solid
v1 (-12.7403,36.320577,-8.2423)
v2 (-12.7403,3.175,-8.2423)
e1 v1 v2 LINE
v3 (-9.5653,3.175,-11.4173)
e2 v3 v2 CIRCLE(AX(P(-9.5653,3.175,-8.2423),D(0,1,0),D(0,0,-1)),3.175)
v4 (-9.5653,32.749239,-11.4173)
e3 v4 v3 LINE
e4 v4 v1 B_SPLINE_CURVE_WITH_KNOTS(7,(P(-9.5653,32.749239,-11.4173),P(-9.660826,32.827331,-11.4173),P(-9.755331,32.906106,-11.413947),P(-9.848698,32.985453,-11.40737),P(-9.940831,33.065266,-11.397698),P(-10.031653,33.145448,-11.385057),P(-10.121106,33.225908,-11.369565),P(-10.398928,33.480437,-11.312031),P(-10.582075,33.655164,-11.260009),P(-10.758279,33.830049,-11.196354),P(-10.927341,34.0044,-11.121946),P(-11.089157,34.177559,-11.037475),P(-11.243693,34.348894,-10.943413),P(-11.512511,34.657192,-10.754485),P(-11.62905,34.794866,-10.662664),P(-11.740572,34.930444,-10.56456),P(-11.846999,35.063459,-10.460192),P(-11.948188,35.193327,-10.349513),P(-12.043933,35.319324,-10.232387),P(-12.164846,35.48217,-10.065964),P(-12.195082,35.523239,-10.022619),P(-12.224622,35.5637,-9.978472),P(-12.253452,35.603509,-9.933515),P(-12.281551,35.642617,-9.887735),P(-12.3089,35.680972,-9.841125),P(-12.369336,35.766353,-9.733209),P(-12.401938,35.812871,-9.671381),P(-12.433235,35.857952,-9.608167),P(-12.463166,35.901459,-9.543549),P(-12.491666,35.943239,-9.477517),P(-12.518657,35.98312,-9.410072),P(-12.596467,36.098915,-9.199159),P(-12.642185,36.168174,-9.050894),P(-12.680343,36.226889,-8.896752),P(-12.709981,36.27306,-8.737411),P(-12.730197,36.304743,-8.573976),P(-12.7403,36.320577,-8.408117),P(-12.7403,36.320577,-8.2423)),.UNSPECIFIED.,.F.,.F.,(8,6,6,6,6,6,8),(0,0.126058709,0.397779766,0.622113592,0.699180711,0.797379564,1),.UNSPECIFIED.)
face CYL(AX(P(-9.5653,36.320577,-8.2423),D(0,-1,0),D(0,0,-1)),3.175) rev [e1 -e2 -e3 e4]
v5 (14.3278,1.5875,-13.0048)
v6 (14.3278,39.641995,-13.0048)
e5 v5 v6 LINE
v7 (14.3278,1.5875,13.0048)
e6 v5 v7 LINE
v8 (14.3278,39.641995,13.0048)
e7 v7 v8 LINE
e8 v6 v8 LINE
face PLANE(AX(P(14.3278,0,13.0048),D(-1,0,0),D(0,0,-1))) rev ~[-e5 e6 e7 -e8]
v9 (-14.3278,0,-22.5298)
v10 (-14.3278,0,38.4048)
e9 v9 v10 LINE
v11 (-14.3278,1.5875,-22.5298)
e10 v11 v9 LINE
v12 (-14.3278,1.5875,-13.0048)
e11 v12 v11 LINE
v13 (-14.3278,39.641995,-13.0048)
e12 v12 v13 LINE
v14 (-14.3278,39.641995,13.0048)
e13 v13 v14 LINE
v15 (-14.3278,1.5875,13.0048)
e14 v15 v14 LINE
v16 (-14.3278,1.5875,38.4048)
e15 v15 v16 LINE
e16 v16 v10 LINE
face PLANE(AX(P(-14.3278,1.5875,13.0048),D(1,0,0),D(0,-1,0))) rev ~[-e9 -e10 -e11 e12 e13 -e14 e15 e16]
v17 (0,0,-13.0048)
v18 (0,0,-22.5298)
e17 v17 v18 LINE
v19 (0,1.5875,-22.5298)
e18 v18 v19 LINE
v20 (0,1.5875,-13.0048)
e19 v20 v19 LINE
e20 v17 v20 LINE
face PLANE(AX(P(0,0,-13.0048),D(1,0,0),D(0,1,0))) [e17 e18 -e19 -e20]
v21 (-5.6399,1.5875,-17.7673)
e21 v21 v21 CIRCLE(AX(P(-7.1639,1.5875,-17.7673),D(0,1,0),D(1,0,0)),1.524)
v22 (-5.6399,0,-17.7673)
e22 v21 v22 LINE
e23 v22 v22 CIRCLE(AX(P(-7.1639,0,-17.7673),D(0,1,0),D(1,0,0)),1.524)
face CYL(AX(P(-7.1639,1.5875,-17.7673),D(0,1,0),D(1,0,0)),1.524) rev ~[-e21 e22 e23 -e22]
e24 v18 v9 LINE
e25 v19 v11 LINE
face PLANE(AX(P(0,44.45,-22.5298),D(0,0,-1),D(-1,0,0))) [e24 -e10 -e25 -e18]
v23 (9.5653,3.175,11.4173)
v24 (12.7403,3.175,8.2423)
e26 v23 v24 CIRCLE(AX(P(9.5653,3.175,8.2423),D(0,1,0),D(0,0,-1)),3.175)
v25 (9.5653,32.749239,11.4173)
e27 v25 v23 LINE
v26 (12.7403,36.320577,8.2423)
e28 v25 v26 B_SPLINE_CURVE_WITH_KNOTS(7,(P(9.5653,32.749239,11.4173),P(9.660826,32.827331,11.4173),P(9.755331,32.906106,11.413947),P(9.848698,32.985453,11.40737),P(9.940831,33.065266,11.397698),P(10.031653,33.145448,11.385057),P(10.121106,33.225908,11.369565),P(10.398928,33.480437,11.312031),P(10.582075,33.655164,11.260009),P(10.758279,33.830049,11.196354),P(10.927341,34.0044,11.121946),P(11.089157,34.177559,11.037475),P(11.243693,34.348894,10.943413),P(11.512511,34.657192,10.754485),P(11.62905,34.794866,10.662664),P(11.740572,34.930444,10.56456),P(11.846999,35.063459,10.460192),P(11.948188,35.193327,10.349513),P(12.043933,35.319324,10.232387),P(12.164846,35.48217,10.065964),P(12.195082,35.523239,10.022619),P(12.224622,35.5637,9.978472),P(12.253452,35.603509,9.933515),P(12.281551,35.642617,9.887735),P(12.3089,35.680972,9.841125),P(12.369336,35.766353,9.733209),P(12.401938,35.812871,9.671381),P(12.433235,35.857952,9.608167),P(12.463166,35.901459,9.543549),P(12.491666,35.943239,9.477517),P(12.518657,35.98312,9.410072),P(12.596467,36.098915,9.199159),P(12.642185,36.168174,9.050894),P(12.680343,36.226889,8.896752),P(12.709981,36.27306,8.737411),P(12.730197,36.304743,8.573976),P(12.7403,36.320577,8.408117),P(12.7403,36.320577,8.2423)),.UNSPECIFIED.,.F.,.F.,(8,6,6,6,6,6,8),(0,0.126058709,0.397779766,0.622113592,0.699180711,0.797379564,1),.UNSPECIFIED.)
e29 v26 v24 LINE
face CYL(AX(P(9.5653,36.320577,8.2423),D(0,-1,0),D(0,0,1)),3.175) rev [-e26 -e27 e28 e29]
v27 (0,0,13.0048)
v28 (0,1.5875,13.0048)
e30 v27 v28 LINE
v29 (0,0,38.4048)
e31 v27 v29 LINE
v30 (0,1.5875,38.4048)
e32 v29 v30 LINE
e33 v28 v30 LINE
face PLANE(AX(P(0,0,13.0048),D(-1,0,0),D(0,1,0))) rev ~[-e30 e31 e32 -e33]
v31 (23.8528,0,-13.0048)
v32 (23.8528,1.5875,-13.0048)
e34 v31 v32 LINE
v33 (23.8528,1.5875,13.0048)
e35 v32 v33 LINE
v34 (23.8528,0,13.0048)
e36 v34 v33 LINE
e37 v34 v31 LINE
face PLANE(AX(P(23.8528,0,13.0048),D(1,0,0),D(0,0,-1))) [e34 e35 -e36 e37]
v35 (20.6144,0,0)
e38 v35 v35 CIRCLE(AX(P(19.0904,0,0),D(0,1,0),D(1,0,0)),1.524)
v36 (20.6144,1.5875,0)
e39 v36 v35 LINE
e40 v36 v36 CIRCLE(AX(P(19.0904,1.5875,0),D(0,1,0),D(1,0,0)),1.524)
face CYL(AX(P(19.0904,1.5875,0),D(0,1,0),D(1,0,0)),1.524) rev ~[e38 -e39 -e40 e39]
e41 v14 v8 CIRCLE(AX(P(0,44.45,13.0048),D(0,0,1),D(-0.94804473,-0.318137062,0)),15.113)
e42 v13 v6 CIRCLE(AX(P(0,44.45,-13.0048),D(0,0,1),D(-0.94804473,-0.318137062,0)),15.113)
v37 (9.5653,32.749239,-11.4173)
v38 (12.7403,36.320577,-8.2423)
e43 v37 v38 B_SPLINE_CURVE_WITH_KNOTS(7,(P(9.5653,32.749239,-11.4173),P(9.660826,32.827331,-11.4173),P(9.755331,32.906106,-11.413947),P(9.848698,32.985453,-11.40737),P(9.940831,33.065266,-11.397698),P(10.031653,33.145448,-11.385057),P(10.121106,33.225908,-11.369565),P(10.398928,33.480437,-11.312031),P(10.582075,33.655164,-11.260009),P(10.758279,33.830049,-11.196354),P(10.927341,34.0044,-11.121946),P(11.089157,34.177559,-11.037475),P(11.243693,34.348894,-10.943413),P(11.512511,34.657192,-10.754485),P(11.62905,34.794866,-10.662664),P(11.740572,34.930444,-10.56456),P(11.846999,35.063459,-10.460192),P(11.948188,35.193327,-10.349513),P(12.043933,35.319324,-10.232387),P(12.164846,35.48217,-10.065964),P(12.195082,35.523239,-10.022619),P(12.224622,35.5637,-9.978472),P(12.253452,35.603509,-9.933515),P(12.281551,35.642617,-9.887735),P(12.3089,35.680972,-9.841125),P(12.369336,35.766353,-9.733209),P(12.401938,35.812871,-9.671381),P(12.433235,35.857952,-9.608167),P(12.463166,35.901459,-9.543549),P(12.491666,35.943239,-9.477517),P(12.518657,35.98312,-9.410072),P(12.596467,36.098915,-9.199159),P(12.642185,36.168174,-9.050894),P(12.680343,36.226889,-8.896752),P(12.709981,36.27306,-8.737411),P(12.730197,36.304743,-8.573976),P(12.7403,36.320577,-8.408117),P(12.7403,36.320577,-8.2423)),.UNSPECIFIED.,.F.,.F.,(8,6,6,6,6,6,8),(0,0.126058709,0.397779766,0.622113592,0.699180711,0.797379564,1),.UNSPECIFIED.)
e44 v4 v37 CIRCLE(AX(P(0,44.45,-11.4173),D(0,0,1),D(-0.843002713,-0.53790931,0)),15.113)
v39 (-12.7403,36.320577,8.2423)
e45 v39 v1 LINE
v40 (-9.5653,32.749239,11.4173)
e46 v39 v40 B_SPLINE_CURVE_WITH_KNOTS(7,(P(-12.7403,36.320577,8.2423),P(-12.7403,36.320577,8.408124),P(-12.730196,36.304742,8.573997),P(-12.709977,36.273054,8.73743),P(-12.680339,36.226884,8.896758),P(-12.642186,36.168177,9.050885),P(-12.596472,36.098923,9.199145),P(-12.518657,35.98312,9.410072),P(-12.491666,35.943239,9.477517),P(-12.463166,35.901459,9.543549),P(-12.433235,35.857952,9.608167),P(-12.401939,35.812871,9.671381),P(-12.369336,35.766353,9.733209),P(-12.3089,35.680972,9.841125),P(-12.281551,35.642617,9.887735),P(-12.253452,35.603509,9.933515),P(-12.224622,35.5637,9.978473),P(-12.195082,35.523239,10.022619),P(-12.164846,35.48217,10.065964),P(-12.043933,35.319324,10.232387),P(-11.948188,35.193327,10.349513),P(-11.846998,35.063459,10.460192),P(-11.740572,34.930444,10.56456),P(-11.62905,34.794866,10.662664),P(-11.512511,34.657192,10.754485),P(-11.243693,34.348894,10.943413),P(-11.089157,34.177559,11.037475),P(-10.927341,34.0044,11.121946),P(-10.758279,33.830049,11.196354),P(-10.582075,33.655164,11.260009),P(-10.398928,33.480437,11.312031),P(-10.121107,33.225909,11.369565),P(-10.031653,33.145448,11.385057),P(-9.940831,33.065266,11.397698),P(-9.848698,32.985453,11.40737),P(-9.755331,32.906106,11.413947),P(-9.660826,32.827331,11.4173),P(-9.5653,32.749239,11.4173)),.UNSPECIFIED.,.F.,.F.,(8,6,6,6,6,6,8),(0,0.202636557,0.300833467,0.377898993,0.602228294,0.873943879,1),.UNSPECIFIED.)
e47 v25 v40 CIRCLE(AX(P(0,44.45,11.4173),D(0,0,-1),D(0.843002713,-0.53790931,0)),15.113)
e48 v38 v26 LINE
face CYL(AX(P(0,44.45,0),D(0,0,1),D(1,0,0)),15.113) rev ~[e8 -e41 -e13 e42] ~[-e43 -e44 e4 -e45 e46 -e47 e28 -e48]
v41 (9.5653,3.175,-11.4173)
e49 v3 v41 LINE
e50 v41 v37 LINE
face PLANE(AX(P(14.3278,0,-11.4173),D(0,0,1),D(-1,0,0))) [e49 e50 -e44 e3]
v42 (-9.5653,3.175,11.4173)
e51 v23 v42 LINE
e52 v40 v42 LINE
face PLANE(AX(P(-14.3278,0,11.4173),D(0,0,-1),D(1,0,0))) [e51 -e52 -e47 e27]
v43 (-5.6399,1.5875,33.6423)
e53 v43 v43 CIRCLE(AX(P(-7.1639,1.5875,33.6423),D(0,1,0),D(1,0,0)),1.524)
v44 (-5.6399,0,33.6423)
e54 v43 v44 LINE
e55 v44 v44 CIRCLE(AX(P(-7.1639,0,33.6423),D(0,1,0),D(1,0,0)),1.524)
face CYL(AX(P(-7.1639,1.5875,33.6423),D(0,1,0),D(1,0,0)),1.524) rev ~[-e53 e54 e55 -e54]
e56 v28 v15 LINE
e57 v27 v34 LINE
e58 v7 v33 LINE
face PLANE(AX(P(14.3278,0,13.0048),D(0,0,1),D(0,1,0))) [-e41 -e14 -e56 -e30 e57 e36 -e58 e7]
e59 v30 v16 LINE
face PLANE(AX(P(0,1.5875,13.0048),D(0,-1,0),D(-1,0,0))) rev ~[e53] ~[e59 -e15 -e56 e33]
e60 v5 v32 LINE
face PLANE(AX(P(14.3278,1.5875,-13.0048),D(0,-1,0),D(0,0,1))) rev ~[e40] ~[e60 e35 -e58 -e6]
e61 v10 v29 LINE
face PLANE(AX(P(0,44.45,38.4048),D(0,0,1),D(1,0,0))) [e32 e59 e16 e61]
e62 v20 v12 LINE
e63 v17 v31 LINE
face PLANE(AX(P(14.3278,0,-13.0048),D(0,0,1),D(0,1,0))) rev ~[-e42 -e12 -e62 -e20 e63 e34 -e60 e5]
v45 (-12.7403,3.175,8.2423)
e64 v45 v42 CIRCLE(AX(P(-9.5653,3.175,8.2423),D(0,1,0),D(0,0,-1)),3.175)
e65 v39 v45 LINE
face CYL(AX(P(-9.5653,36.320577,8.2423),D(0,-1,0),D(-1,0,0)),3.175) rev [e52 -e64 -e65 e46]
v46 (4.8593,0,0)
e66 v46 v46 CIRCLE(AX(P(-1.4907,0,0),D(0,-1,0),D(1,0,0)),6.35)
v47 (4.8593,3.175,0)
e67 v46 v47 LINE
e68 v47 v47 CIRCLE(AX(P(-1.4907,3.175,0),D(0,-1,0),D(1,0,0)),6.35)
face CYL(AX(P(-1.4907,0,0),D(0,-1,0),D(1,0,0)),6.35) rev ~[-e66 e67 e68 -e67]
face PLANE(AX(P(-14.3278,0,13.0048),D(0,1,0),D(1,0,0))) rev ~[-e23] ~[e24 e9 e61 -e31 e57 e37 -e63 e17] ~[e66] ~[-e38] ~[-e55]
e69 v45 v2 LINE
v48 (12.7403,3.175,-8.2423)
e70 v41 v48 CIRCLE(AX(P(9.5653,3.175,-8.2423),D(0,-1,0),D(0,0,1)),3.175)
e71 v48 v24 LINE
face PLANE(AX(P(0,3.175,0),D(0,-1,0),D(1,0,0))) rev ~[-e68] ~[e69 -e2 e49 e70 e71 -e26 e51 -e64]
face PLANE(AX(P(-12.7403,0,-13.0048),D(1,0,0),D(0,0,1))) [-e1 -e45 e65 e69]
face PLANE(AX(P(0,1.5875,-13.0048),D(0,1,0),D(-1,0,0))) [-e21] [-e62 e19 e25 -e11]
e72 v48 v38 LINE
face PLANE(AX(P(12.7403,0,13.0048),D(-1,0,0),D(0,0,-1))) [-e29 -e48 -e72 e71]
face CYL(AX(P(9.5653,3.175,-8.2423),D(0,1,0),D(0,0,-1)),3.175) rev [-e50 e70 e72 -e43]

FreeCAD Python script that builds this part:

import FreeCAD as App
import Part
import Sketcher

V = App.Vector
Q = App.Units.Quantity


def edges_at(feature, points):
    """Names of the edges that pass closest to the given points."""
    edges = feature.Shape.Edges
    near = lambda p: min(range(len(edges)), key=lambda i: edges[i].distToShape(Part.Vertex(*p))[0])
    return sorted({f"Edge{near(p) + 1}" for p in points})


def faces_at(feature, points):
    """Names of the faces that lie closest to the given points."""
    faces = feature.Shape.Faces
    near = lambda p: min(range(len(faces)), key=lambda i: faces[i].distToShape(Part.Vertex(*p))[0])
    return sorted({f"Face{near(p) + 1}" for p in points})

doc = App.newDocument("Part")
params = doc.addObject("Spreadsheet::Sheet", "Params")
for row, (alias, value) in enumerate([
    ("sketch1_height", "1.024 in"),
    ("pad1_length", "1.5802008 in"),
    ("thickness_wall", "0.0625 in"),
    ("sketch2_diameter", "1.19 in"),
    ("pocket1_length", "1.5417992 in"),
    ("sketch3_height", "0.899 in"),
    ("pad2_length", "0.125 in"),
    ("sketch4_diameter", "0.5 in"),
    ("pocket2_length", "0.125 in"),
    ("fillet_radius", "0.125 in"),
    ("sketch5_width", "0.0625 in"),
    ("sketch5_height", "1.024 in"),
    ("pad3_length", "0.375 in"),
    ("sketch6_height", "0.0625 in"),
    ("pad4_length", "0.375 in"),
    ("sketch7_height", "0.0625 in"),
    ("pad5_length", "1 in"),
    ("sketch8_diameter", "0.12 in"),
    ("pocket3_length", "1 in"),
], start=1):
    params.set(f"A{row}", alias)
    params.set(f"B{row}", "=" + value)
    params.setAlias(f"B{row}", alias)

body = doc.addObject("PartDesign::Body", "Body")

# Sketch on XZ plane
sketch1 = body.newObject("Sketcher::SketchObject", "Sketch")
sketch1.AttachmentSupport = (doc.getObject("XZ_Plane"), [""])
sketch1.MapMode = "FlatFace"
sketch1.addGeometry([
    Part.LineSegment(V(14, 13, 0), V(14, -13, 0)),
    Part.LineSegment(V(14, -13, 0), V(-14, -13, 0)),
    Part.LineSegment(V(-14, -13, 0), V(-14, 13, 0)),
    Part.LineSegment(V(-14, 13, 0), V(14, 13, 0)),
], False)
sketch1.addConstraint([
    Sketcher.Constraint("Coincident", 0, 2, 1, 1),
    Sketcher.Constraint("Coincident", 1, 2, 2, 1),
    Sketcher.Constraint("Coincident", 2, 2, 3, 1),
    Sketcher.Constraint("Coincident", 3, 2, 0, 1),
    Sketcher.Constraint("Vertical", 0),
    Sketcher.Constraint("Horizontal", 1),
    Sketcher.Constraint("Vertical", 2),
    Sketcher.Constraint("Horizontal", 3),
    Sketcher.Constraint("Symmetric", 0, 2, 2, 2, -1, 1),
    Sketcher.Constraint("DistanceY", 0, 2, 0, 1, Q("1.024 in")),
    Sketcher.Constraint("DistanceX", 1, 2, 1, 1, Q("28.6556 mm")),
])
sketch1.setExpression("Constraints[9]", "Params.sketch1_height")
pad1 = body.newObject("PartDesign::Pad", "Pad")
pad1.Profile = sketch1
pad1.setExpression("Length", "Params.pad1_length")
pad1.Reversed = True
doc.recompute()

thickness = body.newObject("PartDesign::Thickness", "Thickness")
thickness.Base = (pad1, faces_at(pad1, [(4.776, 0, 4.335), (4.776, 40.137, 4.335)]))
thickness.setExpression("Value", "Params.thickness_wall")
thickness.Reversed = True
thickness.Join = "Intersection"

# Sketch on XY plane
sketch2 = body.newObject("Sketcher::SketchObject", "Sketch001")
sketch2.AttachmentSupport = (doc.getObject("XY_Plane"), [""])
sketch2.MapMode = "FlatFace"
sketch2.addGeometry(Part.Circle(V(0, 44, 0), V(0, 0, 1), 15), False)
sketch2.addConstraint([
    Sketcher.Constraint("PointOnObject", 0, 3, -2),
    Sketcher.Constraint("Diameter", 0, Q("1.19 in")),
    Sketcher.Constraint("DistanceY", -1, 1, 0, 3, Q("1.75 in")),
])
sketch2.setExpression("Constraints[1]", "Params.sketch2_diameter")
pocket1 = body.newObject("PartDesign::Pocket", "Pocket")
pocket1.Profile = sketch2
pocket1.setExpression("Length", "Params.pocket1_length")
pocket1.Midplane = True

# Sketch on XZ plane
sketch3 = body.newObject("Sketcher::SketchObject", "Sketch002")
sketch3.AttachmentSupport = (doc.getObject("XZ_Plane"), [""])
sketch3.MapMode = "FlatFace"
sketch3.addGeometry([
    Part.LineSegment(V(13, -11, 0), V(13, 11, 0)),
    Part.LineSegment(V(13, 11, 0), V(-13, 11, 0)),
    Part.LineSegment(V(-13, 11, 0), V(-13, -11, 0)),
    Part.LineSegment(V(-13, -11, 0), V(13, -11, 0)),
], False)
sketch3.addConstraint([
    Sketcher.Constraint("Coincident", 0, 2, 1, 1),
    Sketcher.Constraint("Coincident", 1, 2, 2, 1),
    Sketcher.Constraint("Coincident", 2, 2, 3, 1),
    Sketcher.Constraint("Coincident", 3, 2, 0, 1),
    Sketcher.Constraint("Vertical", 0),
    Sketcher.Constraint("Horizontal", 1),
    Sketcher.Constraint("Vertical", 2),
    Sketcher.Constraint("Horizontal", 3),
    Sketcher.Constraint("Symmetric", 0, 2, 2, 2, -1, 1),
    Sketcher.Constraint("DistanceY", 0, 1, 0, 2, Q("0.899 in")),
    Sketcher.Constraint("DistanceX", 1, 2, 1, 1, Q("25.4806 mm")),
])
sketch3.setExpression("Constraints[9]", "Params.sketch3_height")
pad2 = body.newObject("PartDesign::Pad", "Pad001")
pad2.Profile = sketch3
pad2.setExpression("Length", "Params.pad2_length")
pad2.Reversed = True

# Sketch on XZ plane
sketch4 = body.newObject("Sketcher::SketchObject", "Sketch003")
sketch4.AttachmentSupport = (doc.getObject("XZ_Plane"), [""])
sketch4.MapMode = "FlatFace"
sketch4.addGeometry(Part.Circle(V(-1, 0, 0), V(0, 0, 1), 6), False)
sketch4.addConstraint([
    Sketcher.Constraint("PointOnObject", 0, 3, -1),
    Sketcher.Constraint("Diameter", 0, Q("0.5 in")),
    Sketcher.Constraint("DistanceX", 0, 3, -1, 1, Q("0.0587 in")),
])
sketch4.setExpression("Constraints[1]", "Params.sketch4_diameter")
pocket2 = body.newObject("PartDesign::Pocket", "Pocket001")
pocket2.Profile = sketch4
pocket2.setExpression("Length", "Params.pocket2_length")
doc.recompute()

fillet = body.newObject("PartDesign::Fillet", "Fillet")
fillet.Base = (pocket2, edges_at(pocket2, [
    (-12.74, 19.748, -11.417),
    (-12.74, 19.748, 11.417),
    (12.74, 19.748, 11.417),
    (12.74, 19.748, -11.417),
]))
fillet.setExpression("Radius", "Params.fillet_radius")

# Sketch on YZ plane
sketch5 = body.newObject("Sketcher::SketchObject", "Sketch004")
sketch5.AttachmentSupport = (doc.getObject("YZ_Plane"), [""])
sketch5.MapMode = "FlatFace"
sketch5.AttachmentOffset = App.Placement(V(0, 0, 14.3278), App.Rotation())
sketch5.addGeometry([
    Part.LineSegment(V(1.6, 13, 0), V(0, 13, 0)),
    Part.LineSegment(V(0, 13, 0), V(0, -13, 0)),
    Part.LineSegment(V(0, -13, 0), V(1.6, -13, 0)),
    Part.LineSegment(V(1.6, -13, 0), V(1.6, 13, 0)),
], False)
sketch5.addConstraint([
    Sketcher.Constraint("Coincident", 0, 2, 1, 1),
    Sketcher.Constraint("Coincident", 1, 2, 2, 1),
    Sketcher.Constraint("Coincident", 2, 2, 3, 1),
    Sketcher.Constraint("Coincident", 3, 2, 0, 1),
    Sketcher.Constraint("Horizontal", 0),
    Sketcher.Constraint("Vertical", 1),
    Sketcher.Constraint("Horizontal", 2),
    Sketcher.Constraint("Vertical", 3),
    Sketcher.Constraint("Symmetric", 0, 2, 1, 2, -1, 1),
    Sketcher.Constraint("DistanceX", 0, 2, 0, 1, Q("0.0625 in")),
    Sketcher.Constraint("DistanceY", 1, 2, 1, 1, Q("1.024 in")),
])
sketch5.setExpression("Constraints[9]", "Params.sketch5_width")
sketch5.setExpression("Constraints[10]", "Params.sketch5_height")
pad3 = body.newObject("PartDesign::Pad", "Pad002")
pad3.Profile = sketch5
pad3.setExpression("Length", "Params.pad3_length")

# Sketch on XY plane
sketch6 = body.newObject("Sketcher::SketchObject", "Sketch005")
sketch6.AttachmentSupport = (doc.getObject("XY_Plane"), [""])
sketch6.MapMode = "FlatFace"
sketch6.AttachmentOffset = App.Placement(V(0, 0, -0.512 * 25.4), App.Rotation())
sketch6.addGeometry([
    Part.LineSegment(V(0, 1.6, 0), V(0, 0, 0)),
    Part.LineSegment(V(0, 0, 0), V(-14.3, 0, 0)),
    Part.LineSegment(V(-14.3, 0, 0), V(-14.3, 1.6, 0)),
    Part.LineSegment(V(-14.3, 1.6, 0), V(0, 1.6, 0)),
], False)
sketch6.addConstraint([
    Sketcher.Constraint("Coincident", 0, 2, 1, 1),
    Sketcher.Constraint("Coincident", 1, 2, 2, 1),
    Sketcher.Constraint("Coincident", 2, 2, 3, 1),
    Sketcher.Constraint("Coincident", 3, 2, 0, 1),
    Sketcher.Constraint("Vertical", 0),
    Sketcher.Constraint("Horizontal", 1),
    Sketcher.Constraint("Vertical", 2),
    Sketcher.Constraint("Horizontal", 3),
    Sketcher.Constraint("Coincident", 0, 2, -1, 1),
    Sketcher.Constraint("DistanceY", 0, 2, 0, 1, Q("0.0625 in")),
    Sketcher.Constraint("DistanceX", 1, 2, 1, 1, Q("14.3278 mm")),
])
sketch6.setExpression("Constraints[9]", "Params.sketch6_height")
pad4 = body.newObject("PartDesign::Pad", "Pad003")
pad4.Profile = sketch6
pad4.setExpression("Length", "Params.pad4_length")
pad4.Reversed = True

# Sketch on XY plane
sketch7 = body.newObject("Sketcher::SketchObject", "Sketch006")
sketch7.AttachmentSupport = (doc.getObject("XY_Plane"), [""])
sketch7.MapMode = "FlatFace"
sketch7.AttachmentOffset = App.Placement(V(0, 0, 0.512 * 25.4), App.Rotation())
sketch7.addGeometry([
    Part.LineSegment(V(-14.3, 1.6, 0), V(-14.3, 0, 0)),
    Part.LineSegment(V(-14.3, 0, 0), V(0, 0, 0)),
    Part.LineSegment(V(0, 0, 0), V(0, 1.6, 0)),
    Part.LineSegment(V(0, 1.6, 0), V(-14.3, 1.6, 0)),
], False)
sketch7.addConstraint([
    Sketcher.Constraint("Coincident", 0, 2, 1, 1),
    Sketcher.Constraint("Coincident", 1, 2, 2, 1),
    Sketcher.Constraint("Coincident", 2, 2, 3, 1),
    Sketcher.Constraint("Coincident", 3, 2, 0, 1),
    Sketcher.Constraint("Vertical", 0),
    Sketcher.Constraint("Horizontal", 1),
    Sketcher.Constraint("Vertical", 2),
    Sketcher.Constraint("Horizontal", 3),
    Sketcher.Constraint("Coincident", 1, 2, -1, 1),
    Sketcher.Constraint("DistanceY", 0, 2, 0, 1, Q("0.0625 in")),
    Sketcher.Constraint("DistanceX", 1, 1, 1, 2, Q("14.3278 mm")),
])
sketch7.setExpression("Constraints[9]", "Params.sketch7_height")
pad5 = body.newObject("PartDesign::Pad", "Pad004")
pad5.Profile = sketch7
pad5.setExpression("Length", "Params.pad5_length")

# Sketch on XZ plane
sketch8 = body.newObject("Sketcher::SketchObject", "Sketch007")
sketch8.AttachmentSupport = (doc.getObject("XZ_Plane"), [""])
sketch8.MapMode = "FlatFace"
sketch8.AttachmentOffset = App.Placement(V(0, 0, -0.0625 * 25.4), App.Rotation())
sketch8.addGeometry([
    Part.Circle(V(-7.2, -17.8, 0), V(0, 0, 1), 1.5),
    Part.Circle(V(19.1, 0, 0), V(0, 0, 1), 1.5),
    Part.Circle(V(-7.2, 33.6, 0), V(0, 0, 1), 1.5),
], False)
sketch8.addConstraint([
    Sketcher.Constraint("Equal", 0, 1),
    Sketcher.Constraint("Equal", 1, 2),
    Sketcher.Constraint("PointOnObject", 1, 3, -1),
    Sketcher.Constraint("Vertical", 0, 3, 2, 3),
    Sketcher.Constraint("Diameter", 0, Q("0.12 in")),
    Sketcher.Constraint("DistanceY", 0, 3, 2, 3, Q("2.024 in")),
    Sketcher.Constraint("DistanceY", 0, 3, -1, 1, Q("0.6995 in")),
    Sketcher.Constraint("DistanceX", -1, 1, 1, 3, Q("0.7516 in")),
    Sketcher.Constraint("DistanceX", 0, 3, -1, 1, Q("7.164 mm")),
])
sketch8.setExpression("Constraints[4]", "Params.sketch8_diameter")
pocket3 = body.newObject("PartDesign::Pocket", "Pocket002")
pocket3.Profile = sketch8
pocket3.setExpression("Length", "Params.pocket3_length")
pocket3.Reversed = True

doc.recompute()
